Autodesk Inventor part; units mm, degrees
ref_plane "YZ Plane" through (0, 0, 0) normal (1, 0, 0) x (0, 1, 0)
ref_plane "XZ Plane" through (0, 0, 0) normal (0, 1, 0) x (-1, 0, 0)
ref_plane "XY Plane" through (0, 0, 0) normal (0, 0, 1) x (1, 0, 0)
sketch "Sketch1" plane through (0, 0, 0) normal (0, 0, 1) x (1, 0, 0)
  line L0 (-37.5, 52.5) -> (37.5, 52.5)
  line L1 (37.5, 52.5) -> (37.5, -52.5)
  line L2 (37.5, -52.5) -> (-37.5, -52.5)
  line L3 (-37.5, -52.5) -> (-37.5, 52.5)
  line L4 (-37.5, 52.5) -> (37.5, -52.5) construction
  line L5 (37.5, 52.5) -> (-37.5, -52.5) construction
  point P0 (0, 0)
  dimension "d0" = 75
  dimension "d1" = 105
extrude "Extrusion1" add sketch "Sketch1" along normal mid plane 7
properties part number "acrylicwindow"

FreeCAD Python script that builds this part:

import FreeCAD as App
import Part
import Sketcher

V = App.Vector


def add_polygon(sketch, points):
    """Adds a closed chain of lines whose ends are joined by coincident constraints."""
    first, n = sketch.GeometryCount, len(points)
    for a, b in zip(points, points[1:] + points[:1]):
        sketch.addGeometry(Part.LineSegment(App.Vector(*a, 0), App.Vector(*b, 0)), False)
    for i in range(n):
        sketch.addConstraint(Sketcher.Constraint("Coincident", first + i, 2, first + (i + 1) % n, 1))

doc = App.newDocument("Part")
body = doc.addObject("PartDesign::Body", "Body")

# Sketch on XY plane
sketch1 = body.newObject("Sketcher::SketchObject", "Sketch")
sketch1.AttachmentSupport = (doc.getObject("XY_Plane"), [""])
sketch1.MapMode = "FlatFace"
add_polygon(sketch1, [(38, 52), (-38, 52), (-38, -52), (38, -52)])  # lines 0-3
sketch1.addConstraint(Sketcher.Constraint("Horizontal", 0))
sketch1.addConstraint(Sketcher.Constraint("Vertical", 1))
sketch1.addConstraint(Sketcher.Constraint("Horizontal", 2))
sketch1.addConstraint(Sketcher.Constraint("Vertical", 3))
sketch1.addConstraint(Sketcher.Constraint("Symmetric", 0, 2, 2, 2, -1, 1))
sketch1.addConstraint(Sketcher.Constraint("DistanceX", 0, 2, 0, 1, 75.0))
sketch1.addConstraint(Sketcher.Constraint("DistanceY", 1, 2, 1, 1, 105.0))
pad1 = body.newObject("PartDesign::Pad", "Pad")
pad1.Profile = sketch1
pad1.Length = 7
pad1.Midplane = True

doc.recompute()
